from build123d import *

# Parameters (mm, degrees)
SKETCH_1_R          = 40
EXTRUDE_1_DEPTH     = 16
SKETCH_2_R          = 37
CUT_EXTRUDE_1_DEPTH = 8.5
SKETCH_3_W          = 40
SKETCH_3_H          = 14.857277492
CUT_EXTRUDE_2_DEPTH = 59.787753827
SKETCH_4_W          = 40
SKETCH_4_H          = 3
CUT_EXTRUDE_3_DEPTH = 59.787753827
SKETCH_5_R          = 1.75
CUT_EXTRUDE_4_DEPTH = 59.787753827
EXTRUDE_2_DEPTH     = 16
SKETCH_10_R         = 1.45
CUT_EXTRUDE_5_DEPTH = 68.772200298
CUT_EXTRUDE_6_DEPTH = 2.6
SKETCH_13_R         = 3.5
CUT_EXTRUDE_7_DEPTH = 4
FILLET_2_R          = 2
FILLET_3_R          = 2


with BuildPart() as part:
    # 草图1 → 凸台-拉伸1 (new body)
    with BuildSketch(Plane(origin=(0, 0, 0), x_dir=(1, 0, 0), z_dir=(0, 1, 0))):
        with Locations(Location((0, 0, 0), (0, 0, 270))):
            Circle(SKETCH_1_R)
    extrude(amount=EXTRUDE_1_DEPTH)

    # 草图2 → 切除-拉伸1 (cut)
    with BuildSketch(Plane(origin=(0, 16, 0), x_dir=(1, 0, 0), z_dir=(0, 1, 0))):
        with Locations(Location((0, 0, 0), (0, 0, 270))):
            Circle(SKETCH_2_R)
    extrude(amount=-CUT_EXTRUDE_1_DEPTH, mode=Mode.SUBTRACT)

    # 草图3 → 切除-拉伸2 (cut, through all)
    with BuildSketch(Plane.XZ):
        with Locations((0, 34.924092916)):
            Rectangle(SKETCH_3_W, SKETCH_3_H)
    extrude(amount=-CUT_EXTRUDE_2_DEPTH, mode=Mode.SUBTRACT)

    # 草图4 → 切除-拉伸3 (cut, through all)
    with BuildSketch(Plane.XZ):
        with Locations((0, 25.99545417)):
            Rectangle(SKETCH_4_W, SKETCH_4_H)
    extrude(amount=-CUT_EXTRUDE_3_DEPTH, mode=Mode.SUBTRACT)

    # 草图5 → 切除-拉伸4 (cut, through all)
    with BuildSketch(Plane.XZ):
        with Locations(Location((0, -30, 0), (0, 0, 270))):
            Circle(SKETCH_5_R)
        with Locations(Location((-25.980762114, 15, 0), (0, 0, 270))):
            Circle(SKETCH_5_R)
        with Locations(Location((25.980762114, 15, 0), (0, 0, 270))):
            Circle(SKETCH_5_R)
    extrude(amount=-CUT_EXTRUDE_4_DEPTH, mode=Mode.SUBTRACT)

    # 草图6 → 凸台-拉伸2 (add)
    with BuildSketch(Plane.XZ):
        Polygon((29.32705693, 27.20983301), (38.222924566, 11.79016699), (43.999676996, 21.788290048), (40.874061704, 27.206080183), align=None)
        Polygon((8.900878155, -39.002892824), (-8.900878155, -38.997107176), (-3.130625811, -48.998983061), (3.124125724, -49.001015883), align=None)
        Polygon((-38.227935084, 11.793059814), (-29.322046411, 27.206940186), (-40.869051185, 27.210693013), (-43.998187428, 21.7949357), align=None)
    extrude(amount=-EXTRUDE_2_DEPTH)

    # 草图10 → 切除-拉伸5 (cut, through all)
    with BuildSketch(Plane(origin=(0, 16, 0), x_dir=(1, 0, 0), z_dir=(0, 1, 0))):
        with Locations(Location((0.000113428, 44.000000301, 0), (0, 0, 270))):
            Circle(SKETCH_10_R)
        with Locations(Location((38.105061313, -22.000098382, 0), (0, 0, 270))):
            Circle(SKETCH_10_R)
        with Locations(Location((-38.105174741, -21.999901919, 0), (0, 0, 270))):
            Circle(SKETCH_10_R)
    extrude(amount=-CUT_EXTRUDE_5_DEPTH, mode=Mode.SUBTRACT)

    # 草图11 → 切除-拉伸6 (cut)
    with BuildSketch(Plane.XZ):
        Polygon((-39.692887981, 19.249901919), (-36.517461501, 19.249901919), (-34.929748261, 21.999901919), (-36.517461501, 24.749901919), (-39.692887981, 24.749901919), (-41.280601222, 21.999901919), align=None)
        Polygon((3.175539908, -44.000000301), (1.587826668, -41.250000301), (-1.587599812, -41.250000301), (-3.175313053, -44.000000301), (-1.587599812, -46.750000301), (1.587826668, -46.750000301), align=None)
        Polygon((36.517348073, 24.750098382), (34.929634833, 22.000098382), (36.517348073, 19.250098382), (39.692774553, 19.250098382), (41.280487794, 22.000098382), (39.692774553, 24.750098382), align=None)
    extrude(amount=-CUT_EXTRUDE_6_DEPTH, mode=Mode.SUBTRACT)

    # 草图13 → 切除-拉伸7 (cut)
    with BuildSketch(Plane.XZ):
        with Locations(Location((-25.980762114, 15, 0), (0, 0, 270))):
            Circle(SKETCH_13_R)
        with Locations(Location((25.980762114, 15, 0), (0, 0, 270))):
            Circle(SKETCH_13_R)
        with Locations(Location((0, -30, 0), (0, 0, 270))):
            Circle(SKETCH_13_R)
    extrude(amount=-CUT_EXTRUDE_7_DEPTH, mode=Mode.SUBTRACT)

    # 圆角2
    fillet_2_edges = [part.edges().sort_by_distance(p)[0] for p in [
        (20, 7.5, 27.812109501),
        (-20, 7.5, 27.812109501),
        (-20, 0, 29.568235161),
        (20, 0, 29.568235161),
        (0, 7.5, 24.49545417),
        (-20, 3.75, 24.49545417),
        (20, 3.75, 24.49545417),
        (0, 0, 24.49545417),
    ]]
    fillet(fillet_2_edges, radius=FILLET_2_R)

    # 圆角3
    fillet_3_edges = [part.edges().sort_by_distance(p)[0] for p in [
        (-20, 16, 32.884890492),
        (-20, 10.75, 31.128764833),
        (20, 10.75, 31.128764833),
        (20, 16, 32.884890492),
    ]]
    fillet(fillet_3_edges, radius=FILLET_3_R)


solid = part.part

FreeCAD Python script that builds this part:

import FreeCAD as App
import Part
import Sketcher
from FreeCAD import Vector
Q = App.Units.Quantity


def edges_at(feature, points):
    """Names of the edges that pass closest to the given points."""
    edges = feature.Shape.Edges
    near = lambda p: min(range(len(edges)), key=lambda i: edges[i].distToShape(Part.Vertex(*p))[0])
    return sorted({f"Edge{near(p) + 1}" for p in points})


def add_polygon(sketch, points):
    """Adds a closed chain of lines whose ends are joined by coincident constraints."""
    first, n = sketch.GeometryCount, len(points)
    for a, b in zip(points, points[1:] + points[:1]):
        sketch.addGeometry(Part.LineSegment(App.Vector(*a, 0), App.Vector(*b, 0)), False)
    for i in range(n):
        sketch.addConstraint(Sketcher.Constraint("Coincident", first + i, 2, first + (i + 1) % n, 1))

doc = App.newDocument("Part")
params = doc.addObject("Spreadsheet::Sheet", "Params")
for row, (alias, value) in enumerate([
    ("sketch1_diameter", "80 mm"),
    ("pad1_length", "16 mm"),
    ("sketch2_diameter", "74 mm"),
    ("pocket1_length", "8.5 mm"),
    ("sketch3_width", "40 mm"),
    ("sketch4_width", "40 mm"),
    ("sketch4_height", "3 mm"),
    ("sketch5_diameter", "3.5 mm"),
    ("pad2_length", "16 mm"),
    ("sketch7_diameter", "2.9 mm"),
    ("pocket6_length", "2.6 mm"),
    ("sketch9_diameter", "7 mm"),
    ("pocket7_length", "4 mm"),
    ("fillet_radius", "2 mm"),
    ("fillet2_radius", "2 mm"),
], start=1):
    params.set(f"A{row}", alias)
    params.set(f"B{row}", "=" + value)
    params.setAlias(f"B{row}", alias)

body = doc.addObject("PartDesign::Body", "Body")

# Sketch on XZ plane
sketch1 = body.newObject("Sketcher::SketchObject", "Sketch")
sketch1.AttachmentSupport = (doc.getObject("XZ_Plane"), [""])
sketch1.MapMode = "FlatFace"
sketch1.addGeometry(Part.Circle(Vector(0, 0, 0), Vector(0, 0, 1), 40), False)
sketch1.addConstraint([
    Sketcher.Constraint("Coincident", 0, 3, -1, 1),
    Sketcher.Constraint("Diameter", 0, 80.0),
])
sketch1.setExpression("Constraints[1]", "Params.sketch1_diameter")
pad1 = body.newObject("PartDesign::Pad", "Pad")
pad1.Profile = sketch1
pad1.setExpression("Length", "Params.pad1_length")
pad1.Reversed = True

# Sketch on XZ plane
sketch2 = body.newObject("Sketcher::SketchObject", "Sketch001")
sketch2.AttachmentSupport = (doc.getObject("XZ_Plane"), [""])
sketch2.MapMode = "FlatFace"
sketch2.AttachmentOffset = App.Placement(Vector(0, 0, -16), App.Rotation())
sketch2.addGeometry(Part.Circle(Vector(0, 0, 0), Vector(0, 0, 1), 37), False)
sketch2.addConstraint([
    Sketcher.Constraint("Coincident", 0, 3, -1, 1),
    Sketcher.Constraint("Diameter", 0, 74.0),
])
sketch2.setExpression("Constraints[1]", "Params.sketch2_diameter")
pocket1 = body.newObject("PartDesign::Pocket", "Pocket")
pocket1.Profile = sketch2
pocket1.setExpression("Length", "Params.pocket1_length")
pocket1.Reversed = True

# Sketch on XZ plane
sketch3 = body.newObject("Sketcher::SketchObject", "Sketch002")
sketch3.AttachmentSupport = (doc.getObject("XZ_Plane"), [""])
sketch3.MapMode = "FlatFace"
add_polygon(sketch3, [(-20, 42), (-20, 27), (20, 27), (20, 42)])  # lines 0-3
sketch3.addConstraint([
    Sketcher.Constraint("Vertical", 0),
    Sketcher.Constraint("Horizontal", 1),
    Sketcher.Constraint("Vertical", 2),
    Sketcher.Constraint("Horizontal", 3),
    Sketcher.Constraint("DistanceX", 1, 1, 1, 2, 40.0),
    Sketcher.Constraint("DistanceX", 0, 2, -1, 1, 20.0),
    Sketcher.Constraint("DistanceY", 0, 2, 0, 1, 14.857277),
    Sketcher.Constraint("DistanceY", -1, 1, 2, 2, 42.352732),
])
sketch3.setExpression("Constraints[8]", "Params.sketch3_width")
pocket2 = body.newObject("PartDesign::Pocket", "Pocket001")
pocket2.Profile = sketch3
pocket2.Type = "ThroughAll"

# Sketch on XZ plane
sketch4 = body.newObject("Sketcher::SketchObject", "Sketch003")
sketch4.AttachmentSupport = (doc.getObject("XZ_Plane"), [""])
sketch4.MapMode = "FlatFace"
add_polygon(sketch4, [(-20, 27.5), (-20, 24.5), (20, 24.5), (20, 27.5)])  # lines 0-3
sketch4.addConstraint([
    Sketcher.Constraint("Vertical", 0),
    Sketcher.Constraint("Horizontal", 1),
    Sketcher.Constraint("Vertical", 2),
    Sketcher.Constraint("Horizontal", 3),
    Sketcher.Constraint("DistanceX", 1, 1, 1, 2, 40.0),
    Sketcher.Constraint("DistanceY", 0, 2, 0, 1, 3.0),
    Sketcher.Constraint("DistanceX", 0, 2, -1, 1, 20.0),
    Sketcher.Constraint("DistanceY", -1, 1, 0, 2, 24.495454),
])
sketch4.setExpression("Constraints[8]", "Params.sketch4_width")
sketch4.setExpression("Constraints[9]", "Params.sketch4_height")
pocket3 = body.newObject("PartDesign::Pocket", "Pocket002")
pocket3.Profile = sketch4
pocket3.Type = "ThroughAll"

# Sketch on XZ plane
sketch5 = body.newObject("Sketcher::SketchObject", "Sketch004")
sketch5.AttachmentSupport = (doc.getObject("XZ_Plane"), [""])
sketch5.MapMode = "FlatFace"
sketch5.addGeometry([
    Part.Circle(Vector(0, -30, 0), Vector(0, 0, 1), 1.8),
    Part.Circle(Vector(-26, 15, 0), Vector(0, 0, 1), 1.8),
    Part.Circle(Vector(26, 15, 0), Vector(0, 0, 1), 1.8),
], False)
sketch5.addConstraint([
    Sketcher.Constraint("Equal", 0, 1),
    Sketcher.Constraint("Equal", 1, 2),
    Sketcher.Constraint("Symmetric", 1, 3, 2, 3, -2),
    Sketcher.Constraint("PointOnObject", 0, 3, -2),
    Sketcher.Constraint("Diameter", 0, 3.5),
    Sketcher.Constraint("DistanceY", 0, 3, -1, 1, 30.0),
    Sketcher.Constraint("DistanceY", -1, 1, 1, 3, 15.0),
    Sketcher.Constraint("DistanceX", 1, 3, -1, 1, 25.980762),
])
sketch5.setExpression("Constraints[4]", "Params.sketch5_diameter")
pocket4 = body.newObject("PartDesign::Pocket", "Pocket003")
pocket4.Profile = sketch5
pocket4.Type = "ThroughAll"

# Sketch on XZ plane
sketch6 = body.newObject("Sketcher::SketchObject", "Sketch005")
sketch6.AttachmentSupport = (doc.getObject("XZ_Plane"), [""])
sketch6.MapMode = "FlatFace"
add_polygon(sketch6, [(29, 27), (38, 12), (44, 22), (41, 27)])  # lines 0-3
add_polygon(sketch6, [(9, -39), (-9, -39), (-3, -49), (3, -49)])  # lines 4-7
add_polygon(sketch6, [(-38, 12), (-29, 27), (-41, 27), (-44, 22)])  # lines 8-11
sketch6.addConstraint([
    Sketcher.Constraint("Parallel", 0, 2),
    Sketcher.Constraint("Parallel", 3, 4),
    Sketcher.Constraint("Parallel", 2, 5),
    Sketcher.Constraint("Parallel", 4, 6),
    Sketcher.Constraint("Parallel", 1, 7),
    Sketcher.Constraint("Parallel", 7, 8),
    Sketcher.Constraint("Parallel", 6, 9),
    Sketcher.Constraint("Parallel", 8, 10),
    Sketcher.Constraint("Parallel", 5, 11),
    Sketcher.Constraint("Equal", 1, 3),
    Sketcher.Constraint("Equal", 0, 4),
    Sketcher.Constraint("Equal", 3, 5),
    Sketcher.Constraint("Equal", 2, 6),
    Sketcher.Constraint("Equal", 4, 8),
    Sketcher.Constraint("Equal", 7, 9),
    Sketcher.Constraint("DistanceX", 6, 2, 0, 2, 35.098799),
    Sketcher.Constraint("DistanceY", 4, 2, 9, 2, 66.2078),
    Sketcher.Constraint("Distance", 2, 6.254752),
    Sketcher.Constraint("DistanceY", -1, 1, 1, 2, 21.78829),
    Sketcher.Constraint("DistanceX", -1, 1, 2, 2, 40.874062),
    Sketcher.Constraint("DistanceY", -1, 1, 2, 2, 27.20608),
    Sketcher.Constraint("DistanceX", 4, 2, -1, 1, 8.900878),
    Sketcher.Constraint("DistanceY", -1, 1, 8, 2, 27.20694),
    Sketcher.Constraint("DistanceX", 9, 2, -1, 1, 40.869051),
])
pad2 = body.newObject("PartDesign::Pad", "Pad001")
pad2.Profile = sketch6
pad2.setExpression("Length", "Params.pad2_length")
pad2.Reversed = True

# Sketch on XZ plane
sketch7 = body.newObject("Sketcher::SketchObject", "Sketch006")
sketch7.AttachmentSupport = (doc.getObject("XZ_Plane"), [""])
sketch7.MapMode = "FlatFace"
sketch7.AttachmentOffset = App.Placement(Vector(0, 0, -16), App.Rotation())
sketch7.addGeometry([
    Part.Circle(Vector(0, -44, 0), Vector(0, 0, 1), 1.4),
    Part.Circle(Vector(38.1, 22, 0), Vector(0, 0, 1), 1.4),
    Part.Circle(Vector(-38.1, 22, 0), Vector(0, 0, 1), 1.4),
], False)
sketch7.addConstraint([
    Sketcher.Constraint("Equal", 0, 1),
    Sketcher.Constraint("Equal", 1, 2),
    Sketcher.Constraint("Diameter", 0, 2.9),
    Sketcher.Constraint("DistanceY", 0, 3, -1, 1, 44.0),
    Sketcher.Constraint("DistanceY", -1, 1, 1, 3, 22.000098),
    Sketcher.Constraint("DistanceY", -1, 1, 2, 3, 21.999902),
    Sketcher.Constraint("DistanceX", -1, 1, 1, 3, 38.105061),
    Sketcher.Constraint("DistanceX", 2, 3, 0, 3, 38.105288),
    Sketcher.Constraint("DistanceX", -1, 1, 0, 3, 0.000113),
])
sketch7.setExpression("Constraints[2]", "Params.sketch7_diameter")
pocket5 = body.newObject("PartDesign::Pocket", "Pocket004")
pocket5.Profile = sketch7
pocket5.Type = "ThroughAll"
pocket5.Reversed = True

# Sketch on XZ plane
sketch8 = body.newObject("Sketcher::SketchObject", "Sketch007")
sketch8.AttachmentSupport = (doc.getObject("XZ_Plane"), [""])
sketch8.MapMode = "FlatFace"
add_polygon(sketch8, [(-39.7, 19.2), (-36.5, 19.2), (-34.9, 22), (-36.5, 24.7), (-39.7, 24.7), (-41.3, 22)])  # lines 0-5
add_polygon(sketch8, [(3.2, -44), (1.6, -41.3), (-1.6, -41.3), (-3.2, -44), (-1.6, -46.8), (1.6, -46.8)])  # lines 6-11
add_polygon(sketch8, [(36.5, 24.8), (34.9, 22), (36.5, 19.3), (39.7, 19.3), (41.3, 22), (39.7, 24.8)])  # lines 12-17
sketch8.addConstraint([
    Sketcher.Constraint("Horizontal", 0),
    Sketcher.Constraint("Horizontal", 3),
    Sketcher.Constraint("Horizontal", 7),
    Sketcher.Constraint("Horizontal", 10),
    Sketcher.Constraint("Horizontal", 14),
    Sketcher.Constraint("Horizontal", 17),
    Sketcher.Constraint("Parallel", 1, 4),
    Sketcher.Constraint("Parallel", 2, 5),
    Sketcher.Constraint("Parallel", 5, 6),
    Sketcher.Constraint("Parallel", 4, 8),
    Sketcher.Constraint("Parallel", 6, 9),
    Sketcher.Constraint("Parallel", 8, 11),
    Sketcher.Constraint("Parallel", 11, 12),
    Sketcher.Constraint("Parallel", 9, 13),
    Sketcher.Constraint("Parallel", 12, 15),
    Sketcher.Constraint("Parallel", 13, 16),
    Sketcher.Constraint("Horizontal", 1, 2, 4, 2),
    Sketcher.Constraint("Horizontal", 8, 2, 11, 2),
    Sketcher.Constraint("Horizontal", 12, 2, 15, 2),
    Sketcher.Constraint("Vertical", 0, 2, 2, 2),
    Sketcher.Constraint("Vertical", 3, 2, 5, 2),
    Sketcher.Constraint("Vertical", 7, 2, 9, 2),
    Sketcher.Constraint("Vertical", 14, 2, 16, 2),
    Sketcher.Constraint("Equal", 3, 7),
    Sketcher.Constraint("Equal", 10, 14),
    Sketcher.Constraint("Equal", 5, 6),
    Sketcher.Constraint("Equal", 11, 12),
    Sketcher.Constraint("Angle", 1, Q("60 deg")),
    Sketcher.Constraint("DistanceY", 8, 2, -1, 1, 44.0),
    Sketcher.Constraint("DistanceY", 0, 2, 2, 2, 5.5),
    Sketcher.Constraint("DistanceY", -1, 1, 0, 2, 19.249902),
    Sketcher.Constraint("DistanceX", 4, 2, -1, 1, 41.280601),
    Sketcher.Constraint("DistanceX", 7, 2, -1, 1, 1.5876),
    Sketcher.Constraint("DistanceY", -1, 1, 12, 2, 22.000098),
    Sketcher.Constraint("DistanceX", 0, 1, 0, 2, 3.175426),
    Sketcher.Constraint("DistanceX", -1, 1, 13, 2, 36.517348),
])
pocket6 = body.newObject("PartDesign::Pocket", "Pocket005")
pocket6.Profile = sketch8
pocket6.setExpression("Length", "Params.pocket6_length")

# Sketch on XZ plane
sketch9 = body.newObject("Sketcher::SketchObject", "Sketch008")
sketch9.AttachmentSupport = (doc.getObject("XZ_Plane"), [""])
sketch9.MapMode = "FlatFace"
sketch9.addGeometry([
    Part.Circle(Vector(-26, 15, 0), Vector(0, 0, 1), 3.5),
    Part.Circle(Vector(26, 15, 0), Vector(0, 0, 1), 3.5),
    Part.Circle(Vector(0, -30, 0), Vector(0, 0, 1), 3.5),
], False)
sketch9.addConstraint([
    Sketcher.Constraint("Equal", 0, 1),
    Sketcher.Constraint("Equal", 1, 2),
    Sketcher.Constraint("Symmetric", 0, 3, 1, 3, -2),
    Sketcher.Constraint("PointOnObject", 2, 3, -2),
    Sketcher.Constraint("Diameter", 0, 7.0),
    Sketcher.Constraint("DistanceY", -1, 1, 0, 3, 15.0),
    Sketcher.Constraint("DistanceY", 2, 3, -1, 1, 30.0),
    Sketcher.Constraint("DistanceX", 0, 3, -1, 1, 25.980762),
])
sketch9.setExpression("Constraints[4]", "Params.sketch9_diameter")
pocket7 = body.newObject("PartDesign::Pocket", "Pocket006")
pocket7.Profile = sketch9
pocket7.setExpression("Length", "Params.pocket7_length")
doc.recompute()

fillet = body.newObject("PartDesign::Fillet", "Fillet")
fillet.Base = (pocket7, edges_at(pocket7, [
    (20, 7.5, 27.812),
    (-20, 7.5, 27.812),
    (-20, 0, 29.568),
    (20, 0, 29.568),
    (0, 7.5, 24.495),
    (-20, 3.75, 24.495),
    (20, 3.75, 24.495),
    (0, 0, 24.495),
]))
fillet.setExpression("Radius", "Params.fillet_radius")
doc.recompute()

fillet2 = body.newObject("PartDesign::Fillet", "Fillet001")
fillet2.Base = (fillet, edges_at(fillet, [
    (-20, 16, 32.885),
    (-20, 10.75, 31.129),
    (20, 10.75, 31.129),
    (20, 16, 32.885),
]))
fillet2.setExpression("Radius", "Params.fillet2_radius")

doc.recompute()
